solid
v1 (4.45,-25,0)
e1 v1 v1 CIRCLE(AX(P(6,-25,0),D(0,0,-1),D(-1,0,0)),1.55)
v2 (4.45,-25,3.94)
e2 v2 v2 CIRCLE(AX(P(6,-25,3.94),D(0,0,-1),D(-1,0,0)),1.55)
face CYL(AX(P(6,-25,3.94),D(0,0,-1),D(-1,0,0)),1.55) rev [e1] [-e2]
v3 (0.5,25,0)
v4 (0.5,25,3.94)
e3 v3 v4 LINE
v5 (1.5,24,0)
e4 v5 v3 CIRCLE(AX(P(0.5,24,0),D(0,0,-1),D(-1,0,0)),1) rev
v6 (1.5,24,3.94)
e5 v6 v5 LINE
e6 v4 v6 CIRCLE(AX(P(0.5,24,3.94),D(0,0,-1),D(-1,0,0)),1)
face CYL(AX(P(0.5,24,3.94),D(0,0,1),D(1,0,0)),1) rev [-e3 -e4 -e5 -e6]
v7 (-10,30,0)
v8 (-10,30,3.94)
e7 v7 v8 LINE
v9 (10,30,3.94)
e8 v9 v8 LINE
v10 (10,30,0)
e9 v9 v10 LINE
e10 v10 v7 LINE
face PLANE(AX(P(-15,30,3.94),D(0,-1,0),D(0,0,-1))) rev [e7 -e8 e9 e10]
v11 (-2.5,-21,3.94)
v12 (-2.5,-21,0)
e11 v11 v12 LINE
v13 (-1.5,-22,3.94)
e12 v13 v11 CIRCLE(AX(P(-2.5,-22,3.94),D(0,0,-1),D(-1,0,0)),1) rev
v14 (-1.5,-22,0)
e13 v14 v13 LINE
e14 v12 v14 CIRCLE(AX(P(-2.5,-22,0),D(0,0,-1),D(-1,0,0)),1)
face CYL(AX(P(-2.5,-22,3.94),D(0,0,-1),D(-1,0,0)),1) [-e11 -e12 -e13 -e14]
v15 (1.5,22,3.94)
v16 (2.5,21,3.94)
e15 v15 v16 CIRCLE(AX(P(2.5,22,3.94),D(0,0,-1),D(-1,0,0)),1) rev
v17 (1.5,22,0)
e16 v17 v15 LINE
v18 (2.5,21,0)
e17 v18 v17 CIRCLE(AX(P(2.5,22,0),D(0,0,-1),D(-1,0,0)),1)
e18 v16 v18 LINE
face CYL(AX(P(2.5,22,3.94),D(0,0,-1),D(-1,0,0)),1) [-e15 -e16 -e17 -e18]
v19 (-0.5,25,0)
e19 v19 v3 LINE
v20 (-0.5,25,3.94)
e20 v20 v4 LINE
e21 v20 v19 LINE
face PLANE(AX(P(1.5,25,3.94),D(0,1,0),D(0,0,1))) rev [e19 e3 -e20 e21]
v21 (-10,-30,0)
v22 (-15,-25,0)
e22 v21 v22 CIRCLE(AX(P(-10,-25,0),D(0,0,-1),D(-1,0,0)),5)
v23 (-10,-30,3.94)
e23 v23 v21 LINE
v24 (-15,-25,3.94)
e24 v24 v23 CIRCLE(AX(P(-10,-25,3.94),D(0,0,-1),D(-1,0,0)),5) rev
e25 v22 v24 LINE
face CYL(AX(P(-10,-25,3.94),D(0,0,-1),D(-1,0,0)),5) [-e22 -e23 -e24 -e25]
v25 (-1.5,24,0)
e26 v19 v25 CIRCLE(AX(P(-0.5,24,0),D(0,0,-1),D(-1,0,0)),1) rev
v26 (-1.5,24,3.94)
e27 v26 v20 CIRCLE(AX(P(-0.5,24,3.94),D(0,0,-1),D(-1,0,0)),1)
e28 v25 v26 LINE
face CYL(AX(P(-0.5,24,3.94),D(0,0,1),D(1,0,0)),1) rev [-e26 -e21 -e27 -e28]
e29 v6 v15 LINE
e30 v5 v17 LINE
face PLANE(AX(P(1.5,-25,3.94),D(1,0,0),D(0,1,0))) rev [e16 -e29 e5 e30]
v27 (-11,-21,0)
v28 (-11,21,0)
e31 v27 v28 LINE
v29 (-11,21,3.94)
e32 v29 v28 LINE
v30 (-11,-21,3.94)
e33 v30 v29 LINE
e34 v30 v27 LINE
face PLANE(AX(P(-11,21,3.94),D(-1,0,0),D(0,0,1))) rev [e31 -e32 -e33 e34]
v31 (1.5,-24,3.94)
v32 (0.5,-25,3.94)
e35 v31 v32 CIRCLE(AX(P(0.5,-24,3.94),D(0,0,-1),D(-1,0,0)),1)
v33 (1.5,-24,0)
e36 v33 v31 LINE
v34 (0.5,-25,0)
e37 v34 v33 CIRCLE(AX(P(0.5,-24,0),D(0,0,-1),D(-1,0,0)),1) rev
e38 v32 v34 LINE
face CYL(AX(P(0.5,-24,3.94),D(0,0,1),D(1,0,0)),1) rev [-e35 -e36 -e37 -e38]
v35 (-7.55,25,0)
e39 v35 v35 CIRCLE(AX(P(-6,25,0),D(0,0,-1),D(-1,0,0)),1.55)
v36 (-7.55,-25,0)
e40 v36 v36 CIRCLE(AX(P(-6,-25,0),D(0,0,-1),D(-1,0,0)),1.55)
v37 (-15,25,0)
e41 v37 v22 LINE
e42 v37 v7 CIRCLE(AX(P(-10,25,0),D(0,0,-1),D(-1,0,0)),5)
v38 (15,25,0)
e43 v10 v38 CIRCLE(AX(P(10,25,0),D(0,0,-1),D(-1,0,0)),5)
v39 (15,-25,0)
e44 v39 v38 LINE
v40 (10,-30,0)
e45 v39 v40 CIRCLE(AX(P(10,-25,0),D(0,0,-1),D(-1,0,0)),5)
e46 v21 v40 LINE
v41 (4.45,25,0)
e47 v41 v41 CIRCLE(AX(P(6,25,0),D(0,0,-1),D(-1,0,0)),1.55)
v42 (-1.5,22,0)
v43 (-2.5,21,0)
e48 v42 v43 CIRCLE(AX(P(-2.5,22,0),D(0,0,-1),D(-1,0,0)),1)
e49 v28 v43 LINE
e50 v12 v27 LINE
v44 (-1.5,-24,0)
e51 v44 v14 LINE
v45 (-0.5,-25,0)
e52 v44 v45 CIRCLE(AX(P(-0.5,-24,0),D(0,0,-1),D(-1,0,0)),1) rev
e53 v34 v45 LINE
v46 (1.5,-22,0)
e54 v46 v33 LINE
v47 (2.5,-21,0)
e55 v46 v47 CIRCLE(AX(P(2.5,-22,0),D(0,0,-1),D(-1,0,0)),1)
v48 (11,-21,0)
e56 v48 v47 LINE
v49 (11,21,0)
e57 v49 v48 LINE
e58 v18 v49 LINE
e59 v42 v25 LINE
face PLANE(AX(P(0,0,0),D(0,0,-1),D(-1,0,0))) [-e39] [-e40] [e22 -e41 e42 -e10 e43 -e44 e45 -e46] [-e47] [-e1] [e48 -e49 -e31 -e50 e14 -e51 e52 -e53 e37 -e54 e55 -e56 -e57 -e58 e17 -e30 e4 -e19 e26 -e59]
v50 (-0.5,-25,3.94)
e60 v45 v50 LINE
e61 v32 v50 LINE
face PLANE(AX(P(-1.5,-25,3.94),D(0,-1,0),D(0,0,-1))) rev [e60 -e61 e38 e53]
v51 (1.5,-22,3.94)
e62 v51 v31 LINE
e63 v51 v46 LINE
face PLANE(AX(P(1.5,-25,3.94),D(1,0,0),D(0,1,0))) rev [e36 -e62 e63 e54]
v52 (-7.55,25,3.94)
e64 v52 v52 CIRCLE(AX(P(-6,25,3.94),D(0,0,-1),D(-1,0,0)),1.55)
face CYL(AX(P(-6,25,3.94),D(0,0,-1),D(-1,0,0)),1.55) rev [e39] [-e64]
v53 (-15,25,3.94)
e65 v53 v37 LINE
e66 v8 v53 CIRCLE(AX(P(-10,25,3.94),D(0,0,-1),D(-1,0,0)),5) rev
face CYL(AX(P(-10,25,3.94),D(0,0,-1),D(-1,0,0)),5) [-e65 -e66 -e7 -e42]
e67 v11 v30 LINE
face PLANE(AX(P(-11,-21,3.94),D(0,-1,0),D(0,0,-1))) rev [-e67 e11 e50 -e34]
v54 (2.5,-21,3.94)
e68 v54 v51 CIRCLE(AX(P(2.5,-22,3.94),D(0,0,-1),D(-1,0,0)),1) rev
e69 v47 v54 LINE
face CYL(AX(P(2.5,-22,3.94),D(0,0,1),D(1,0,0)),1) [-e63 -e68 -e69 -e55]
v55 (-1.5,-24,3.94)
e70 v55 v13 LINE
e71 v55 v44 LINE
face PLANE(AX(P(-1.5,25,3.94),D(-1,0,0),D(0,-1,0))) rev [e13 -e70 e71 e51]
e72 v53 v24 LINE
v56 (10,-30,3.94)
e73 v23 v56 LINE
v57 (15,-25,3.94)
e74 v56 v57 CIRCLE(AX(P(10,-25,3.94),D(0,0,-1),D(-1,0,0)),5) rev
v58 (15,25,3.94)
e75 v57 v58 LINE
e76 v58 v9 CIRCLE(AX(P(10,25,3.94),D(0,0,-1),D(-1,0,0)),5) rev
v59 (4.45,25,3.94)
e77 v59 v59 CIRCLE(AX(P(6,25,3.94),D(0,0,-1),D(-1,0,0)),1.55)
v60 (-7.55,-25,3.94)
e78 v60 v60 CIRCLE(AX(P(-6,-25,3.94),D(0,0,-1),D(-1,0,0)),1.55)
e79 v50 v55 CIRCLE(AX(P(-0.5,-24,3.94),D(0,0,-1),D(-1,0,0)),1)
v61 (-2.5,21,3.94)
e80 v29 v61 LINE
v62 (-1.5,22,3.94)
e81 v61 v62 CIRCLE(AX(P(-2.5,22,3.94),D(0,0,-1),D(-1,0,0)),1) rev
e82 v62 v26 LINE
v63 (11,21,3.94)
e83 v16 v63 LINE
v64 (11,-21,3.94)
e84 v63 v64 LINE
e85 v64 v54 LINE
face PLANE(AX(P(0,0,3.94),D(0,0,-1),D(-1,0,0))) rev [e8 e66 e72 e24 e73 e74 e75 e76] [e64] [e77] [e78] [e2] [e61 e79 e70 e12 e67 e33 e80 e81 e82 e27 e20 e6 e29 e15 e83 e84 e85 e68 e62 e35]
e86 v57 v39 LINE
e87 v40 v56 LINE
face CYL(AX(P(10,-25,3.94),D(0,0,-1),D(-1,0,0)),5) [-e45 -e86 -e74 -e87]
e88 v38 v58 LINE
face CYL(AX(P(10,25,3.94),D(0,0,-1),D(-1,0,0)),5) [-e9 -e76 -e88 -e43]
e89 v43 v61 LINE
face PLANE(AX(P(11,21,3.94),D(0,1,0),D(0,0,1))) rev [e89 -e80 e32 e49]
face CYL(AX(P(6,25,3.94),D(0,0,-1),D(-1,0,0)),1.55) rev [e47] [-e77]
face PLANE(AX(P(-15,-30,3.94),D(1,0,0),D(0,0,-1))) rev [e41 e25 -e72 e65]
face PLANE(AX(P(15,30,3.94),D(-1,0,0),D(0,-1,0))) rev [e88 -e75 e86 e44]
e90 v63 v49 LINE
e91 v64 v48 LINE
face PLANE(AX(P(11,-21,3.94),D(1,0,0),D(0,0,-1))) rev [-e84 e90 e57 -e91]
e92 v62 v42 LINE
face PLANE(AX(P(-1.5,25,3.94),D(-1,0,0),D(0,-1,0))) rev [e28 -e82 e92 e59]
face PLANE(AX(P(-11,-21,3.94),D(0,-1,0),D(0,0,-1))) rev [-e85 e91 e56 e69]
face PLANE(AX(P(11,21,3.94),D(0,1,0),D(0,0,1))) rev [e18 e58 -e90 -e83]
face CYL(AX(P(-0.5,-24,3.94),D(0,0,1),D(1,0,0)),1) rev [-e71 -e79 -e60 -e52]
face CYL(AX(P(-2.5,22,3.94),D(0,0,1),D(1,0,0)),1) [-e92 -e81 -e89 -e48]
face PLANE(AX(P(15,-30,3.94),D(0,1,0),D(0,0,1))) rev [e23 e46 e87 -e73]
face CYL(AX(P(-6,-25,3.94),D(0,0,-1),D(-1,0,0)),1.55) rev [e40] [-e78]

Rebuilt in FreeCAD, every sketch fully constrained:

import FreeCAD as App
import Part
import Sketcher

V = App.Vector


def edges_at(feature, points):
    """Names of the edges that pass closest to the given points."""
    edges = feature.Shape.Edges
    near = lambda p: min(range(len(edges)), key=lambda i: edges[i].distToShape(Part.Vertex(*p))[0])
    return sorted({f"Edge{near(p) + 1}" for p in points})


def add_polygon(sketch, points):
    """Adds a closed chain of lines whose ends are joined by coincident constraints."""
    first, n = sketch.GeometryCount, len(points)
    for a, b in zip(points, points[1:] + points[:1]):
        sketch.addGeometry(Part.LineSegment(App.Vector(*a, 0), App.Vector(*b, 0)), False)
    for i in range(n):
        sketch.addConstraint(Sketcher.Constraint("Coincident", first + i, 2, first + (i + 1) % n, 1))

doc = App.newDocument("Part")
body = doc.addObject("PartDesign::Body", "Body")

sketch1 = doc.addObject("Sketcher::SketchObject", "Sketch")
body.addObject(sketch1)
sketch1.AttachmentSupport = (doc.XY_Plane, [""])
sketch1.MapMode = "FlatFace"
add_polygon(sketch1, [(-15, 30), (-15, -30), (15, -30), (15, 30)])
sketch1.addConstraint([
    Sketcher.Constraint("Vertical", 0),
    Sketcher.Constraint("Horizontal", 1),
    Sketcher.Constraint("Vertical", 2),
    Sketcher.Constraint("Horizontal", 3),
    Sketcher.Constraint("Symmetric", 0, 2, 2, 2, -1, 1),
    Sketcher.Constraint("DistanceX", 1, 1, 1, 2, 30.0),
    Sketcher.Constraint("DistanceY", 0, 2, 0, 1, 60.0),
])
pad1 = doc.addObject("PartDesign::Pad", "Pad")
body.addObject(pad1)
pad1.Profile = sketch1
pad1.Length = 3.94

sketch2 = doc.addObject("Sketcher::SketchObject", "Sketch001")
body.addObject(sketch2)
sketch2.AttachmentSupport = (doc.XY_Plane, [""])
sketch2.MapMode = "FlatFace"
add_polygon(sketch2, [(11, 21), (11, -21), (-11, -21), (-11, 21)])
sketch2.addConstraint([
    Sketcher.Constraint("Vertical", 0),
    Sketcher.Constraint("Horizontal", 1),
    Sketcher.Constraint("Vertical", 2),
    Sketcher.Constraint("Horizontal", 3),
    Sketcher.Constraint("Symmetric", 0, 2, 2, 2, -1, 1),
    Sketcher.Constraint("DistanceX", 1, 2, 1, 1, 22.0),
    Sketcher.Constraint("DistanceY", 0, 2, 0, 1, 42.0),
])
pocket1 = doc.addObject("PartDesign::Pocket", "Pocket")
body.addObject(pocket1)
pocket1.Profile = sketch2
pocket1.Type = "ThroughAll"
pocket1.Reversed = True

sketch3 = doc.addObject("Sketcher::SketchObject", "Sketch002")
body.addObject(sketch3)
sketch3.AttachmentSupport = (doc.XY_Plane, [""])
sketch3.MapMode = "FlatFace"
sketch3.addGeometry(Part.Circle(V(6, 25, 0), V(0, 0, 1), 1.55), False)
sketch3.addGeometry(Part.Circle(V(-6, 25, 0), V(0, 0, 1), 1.55), False)
sketch3.addGeometry(Part.Circle(V(6, -25, 0), V(0, 0, 1), 1.55), False)
sketch3.addGeometry(Part.Circle(V(-6, -25, 0), V(0, 0, 1), 1.55), False)
add_polygon(sketch3, [(1.5, 25), (1.5, -25), (-1.5, -25), (-1.5, 25)])
sketch3.addConstraint([
    Sketcher.Constraint("Vertical", 4),
    Sketcher.Constraint("Horizontal", 5),
    Sketcher.Constraint("Vertical", 6),
    Sketcher.Constraint("Horizontal", 7),
    Sketcher.Constraint("Equal", 0, 1),
    Sketcher.Constraint("Equal", 1, 2),
    Sketcher.Constraint("Equal", 2, 3),
    Sketcher.Constraint("Symmetric", 1, 3, 2, 3, -1, 1),
    Sketcher.Constraint("Symmetric", 0, 3, 3, 3, -1, 1),
    Sketcher.Constraint("Symmetric", 4, 2, 6, 2, -1, 1),
    Sketcher.Constraint("Symmetric", 0, 3, 1, 3, -2),
    Sketcher.Constraint("Horizontal", 3, 3, 4, 2),
    Sketcher.Constraint("Diameter", 0, 3.1),
    Sketcher.Constraint("DistanceX", 5, 2, 5, 1, 3.0),
    Sketcher.Constraint("DistanceY", 4, 2, 4, 1, 50.0),
    Sketcher.Constraint("DistanceX", -1, 1, 0, 3, 6.0),
])
pocket2 = doc.addObject("PartDesign::Pocket", "Pocket001")
body.addObject(pocket2)
pocket2.Profile = sketch3
pocket2.Type = "ThroughAll"
pocket2.Reversed = True
doc.recompute()

fillet = doc.addObject("PartDesign::Fillet", "Fillet")
body.addObject(fillet)
fillet.Base = (pocket2, edges_at(pocket2, [
    (-15, 30, 1.97),
    (15, 30, 1.97),
    (15, -30, 1.97),
    (-15, -30, 1.97),
]))
fillet.Radius = 5
doc.recompute()

fillet2 = doc.addObject("PartDesign::Fillet", "Fillet001")
body.addObject(fillet2)
fillet2.Base = (fillet, edges_at(fillet, [
    (1.5, -21, 1.97),
    (-1.5, -21, 1.97),
    (-1.5, 21, 1.97),
    (-1.5, 25, 1.97),
    (1.5, 21, 1.97),
    (1.5, -25, 1.97),
    (-1.5, -25, 1.97),
    (1.5, 25, 1.97),
]))
fillet2.Radius = 1

doc.recompute()
